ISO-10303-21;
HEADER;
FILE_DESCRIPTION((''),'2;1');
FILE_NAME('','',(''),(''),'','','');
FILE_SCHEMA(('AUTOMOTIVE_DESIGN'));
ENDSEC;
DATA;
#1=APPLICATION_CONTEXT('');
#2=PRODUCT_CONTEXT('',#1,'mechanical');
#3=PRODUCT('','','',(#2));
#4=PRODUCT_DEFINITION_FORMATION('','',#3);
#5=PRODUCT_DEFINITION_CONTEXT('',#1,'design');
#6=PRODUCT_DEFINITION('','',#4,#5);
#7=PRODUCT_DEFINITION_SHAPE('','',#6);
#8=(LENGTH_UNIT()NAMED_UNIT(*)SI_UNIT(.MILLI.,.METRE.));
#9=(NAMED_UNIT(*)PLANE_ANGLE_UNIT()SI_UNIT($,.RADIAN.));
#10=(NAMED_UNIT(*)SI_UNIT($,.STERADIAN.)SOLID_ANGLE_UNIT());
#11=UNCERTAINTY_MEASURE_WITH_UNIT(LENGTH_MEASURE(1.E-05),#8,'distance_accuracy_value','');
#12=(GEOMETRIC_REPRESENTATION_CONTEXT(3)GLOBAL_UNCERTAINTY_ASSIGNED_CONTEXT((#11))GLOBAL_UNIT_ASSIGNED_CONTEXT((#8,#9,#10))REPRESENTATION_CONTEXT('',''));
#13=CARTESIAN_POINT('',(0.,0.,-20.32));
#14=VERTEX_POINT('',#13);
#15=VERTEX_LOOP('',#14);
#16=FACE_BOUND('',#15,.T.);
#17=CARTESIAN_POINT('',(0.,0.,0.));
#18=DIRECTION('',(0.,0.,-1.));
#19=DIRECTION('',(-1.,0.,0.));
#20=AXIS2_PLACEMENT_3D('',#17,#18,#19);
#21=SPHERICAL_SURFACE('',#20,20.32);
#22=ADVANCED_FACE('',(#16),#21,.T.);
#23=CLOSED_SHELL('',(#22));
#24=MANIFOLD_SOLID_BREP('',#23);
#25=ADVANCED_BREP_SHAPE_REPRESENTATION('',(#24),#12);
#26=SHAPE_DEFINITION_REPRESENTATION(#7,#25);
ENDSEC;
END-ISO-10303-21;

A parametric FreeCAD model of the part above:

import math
import FreeCAD as App
import Part
import Sketcher

V = App.Vector
Q = App.Units.Quantity

doc = App.newDocument("Part")
body = doc.addObject("PartDesign::Body", "Body")

sketch1 = doc.addObject("Sketcher::SketchObject", "Sketch")
body.addObject(sketch1)
sketch1.AttachmentSupport = (doc.XZ_Plane, [""])
sketch1.MapMode = "FlatFace"
sketch1.addGeometry(Part.LineSegment(V(0, -20, 0), V(0, 20, 0)), False)
sketch1.addGeometry(Part.ArcOfCircle(Part.Circle(V(0, 0, 0), V(0, 0, 1), 20), math.radians(90), math.radians(270)), False)
sketch1.addConstraint(Sketcher.Constraint("Coincident", 0, 1, 1, 2))
sketch1.addConstraint(Sketcher.Constraint("Coincident", 1, 1, 0, 2))
sketch1.addConstraint(Sketcher.Constraint("Vertical", 0))
sketch1.addConstraint(Sketcher.Constraint("Coincident", 1, 3, -1, 1))
sketch1.addConstraint(Sketcher.Constraint("PointOnObject", 0, 1, -2))
sketch1.addConstraint(Sketcher.Constraint("Radius", 1, Q("0.8 in")))
revolution = doc.addObject("PartDesign::Revolution", "Revolution")
body.addObject(revolution)
revolution.Profile = sketch1
revolution.ReferenceAxis = (sketch1, ["V_Axis"])
revolution.Angle = 360

sketch2 = doc.addObject("Sketcher::SketchObject", "Sketch001")
body.addObject(sketch2)
sketch2.AttachmentSupport = (doc.XZ_Plane, [""])
sketch2.MapMode = "FlatFace"
sketch2.addGeometry(Part.Circle(V(0, 43.6, 0), V(0, 0, 1), 1.3), False)
sketch2.addConstraint(Sketcher.Constraint("PointOnObject", 0, 3, -2))
sketch2.addConstraint(Sketcher.Constraint("Diameter", 0, Q("0.1 in")))
sketch2.addConstraint(Sketcher.Constraint("DistanceY", -1, 1, 0, 3, 43.552317))
pocket1 = doc.addObject("PartDesign::Pocket", "Pocket")
body.addObject(pocket1)
pocket1.Profile = sketch2
pocket1.Type = "ThroughAll"
pocket1.Midplane = True

doc.recompute()
